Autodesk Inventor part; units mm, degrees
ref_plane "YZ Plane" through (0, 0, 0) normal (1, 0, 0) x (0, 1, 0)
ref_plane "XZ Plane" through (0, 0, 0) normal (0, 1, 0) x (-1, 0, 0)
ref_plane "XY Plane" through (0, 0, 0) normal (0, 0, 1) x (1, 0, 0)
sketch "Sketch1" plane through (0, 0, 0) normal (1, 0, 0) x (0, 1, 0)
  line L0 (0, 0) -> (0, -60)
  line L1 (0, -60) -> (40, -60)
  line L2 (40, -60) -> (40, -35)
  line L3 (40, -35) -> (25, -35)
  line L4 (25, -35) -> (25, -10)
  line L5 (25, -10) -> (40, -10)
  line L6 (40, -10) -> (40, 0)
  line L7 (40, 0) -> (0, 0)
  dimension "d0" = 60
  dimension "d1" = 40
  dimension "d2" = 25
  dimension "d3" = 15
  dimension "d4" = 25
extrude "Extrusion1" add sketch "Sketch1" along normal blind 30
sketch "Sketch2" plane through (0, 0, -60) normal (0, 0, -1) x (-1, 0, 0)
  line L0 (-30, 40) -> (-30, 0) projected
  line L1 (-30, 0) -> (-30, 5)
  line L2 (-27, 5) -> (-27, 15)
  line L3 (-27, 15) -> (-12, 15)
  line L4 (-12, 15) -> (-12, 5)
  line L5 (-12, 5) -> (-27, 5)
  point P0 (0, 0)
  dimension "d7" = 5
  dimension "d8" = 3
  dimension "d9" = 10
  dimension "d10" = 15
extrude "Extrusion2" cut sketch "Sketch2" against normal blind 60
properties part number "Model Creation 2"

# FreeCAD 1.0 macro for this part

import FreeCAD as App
import Part
import Sketcher
from FreeCAD import Vector

doc = App.newDocument("Part")
params = doc.addObject("Spreadsheet::Sheet", "Params")
for row, (alias, value) in enumerate([
    ("sketch1_width", "40 mm"),
    ("sketch1_width2", "15 mm"),
    ("sketch1_height", "60 mm"),
    ("sketch1_height2", "25 mm"),
    ("pad1_length", "30 mm"),
    ("sketch2_width", "15 mm"),
    ("sketch2_height", "10 mm"),
    ("pocket1_length", "60 mm"),
], start=1):
    params.set(f"A{row}", alias)
    params.set(f"B{row}", "=" + value)
    params.setAlias(f"B{row}", alias)

body = doc.addObject("PartDesign::Body", "Body")

# Sketch on YZ plane
sketch1 = body.newObject("Sketcher::SketchObject", "Sketch")
sketch1.AttachmentSupport = (doc.getObject("YZ_Plane"), [""])
sketch1.MapMode = "FlatFace"
sketch1.addGeometry(Part.LineSegment(Vector(40, 0, 0), Vector(0, 0, 0)), False)
sketch1.addGeometry(Part.LineSegment(Vector(0, 0, 0), Vector(0, -60, 0)), False)
sketch1.addGeometry(Part.LineSegment(Vector(0, -60, 0), Vector(40, -60, 0)), False)
sketch1.addGeometry(Part.LineSegment(Vector(40, -60, 0), Vector(40, -35, 0)), False)
sketch1.addGeometry(Part.LineSegment(Vector(40, -35, 0), Vector(25, -35, 0)), False)
sketch1.addGeometry(Part.LineSegment(Vector(25, -35, 0), Vector(25, -10, 0)), False)
sketch1.addGeometry(Part.LineSegment(Vector(25, -10, 0), Vector(40, -10, 0)), False)
sketch1.addGeometry(Part.LineSegment(Vector(40, -10, 0), Vector(40, 0, 0)), False)
sketch1.addConstraint(Sketcher.Constraint("Coincident", 0, 2, 1, 1))
sketch1.addConstraint(Sketcher.Constraint("Coincident", 1, 2, 2, 1))
sketch1.addConstraint(Sketcher.Constraint("Coincident", 2, 2, 3, 1))
sketch1.addConstraint(Sketcher.Constraint("Coincident", 3, 2, 4, 1))
sketch1.addConstraint(Sketcher.Constraint("Coincident", 4, 2, 5, 1))
sketch1.addConstraint(Sketcher.Constraint("Coincident", 5, 2, 6, 1))
sketch1.addConstraint(Sketcher.Constraint("Coincident", 6, 2, 7, 1))
sketch1.addConstraint(Sketcher.Constraint("Coincident", 7, 2, 0, 1))
sketch1.addConstraint(Sketcher.Constraint("Horizontal", 0))
sketch1.addConstraint(Sketcher.Constraint("Vertical", 1))
sketch1.addConstraint(Sketcher.Constraint("Horizontal", 2))
sketch1.addConstraint(Sketcher.Constraint("Vertical", 3))
sketch1.addConstraint(Sketcher.Constraint("Horizontal", 4))
sketch1.addConstraint(Sketcher.Constraint("Vertical", 5))
sketch1.addConstraint(Sketcher.Constraint("Horizontal", 6))
sketch1.addConstraint(Sketcher.Constraint("Vertical", 7))
sketch1.addConstraint(Sketcher.Constraint("Coincident", 0, 2, -1, 1))
sketch1.addConstraint(Sketcher.Constraint("Vertical", 3, 2, 6, 2))
sketch1.addConstraint(Sketcher.Constraint("Equal", 3, 5))
sketch1.addConstraint(Sketcher.Constraint("DistanceX", 0, 2, 0, 1, 40.0))
sketch1.addConstraint(Sketcher.Constraint("DistanceX", 4, 2, 4, 1, 15.0))
sketch1.addConstraint(Sketcher.Constraint("DistanceY", 1, 2, 1, 1, 60.0))
sketch1.addConstraint(Sketcher.Constraint("DistanceY", 3, 1, 3, 2, 25.0))
sketch1.setExpression("Constraints[19]", "Params.sketch1_width")
sketch1.setExpression("Constraints[20]", "Params.sketch1_width2")
sketch1.setExpression("Constraints[21]", "Params.sketch1_height")
sketch1.setExpression("Constraints[22]", "Params.sketch1_height2")
pad1 = body.newObject("PartDesign::Pad", "Pad")
pad1.Profile = sketch1
pad1.setExpression("Length", "Params.pad1_length")

# Sketch on XY plane
sketch2 = body.newObject("Sketcher::SketchObject", "Sketch001")
sketch2.AttachmentSupport = (doc.getObject("XY_Plane"), [""])
sketch2.MapMode = "FlatFace"
sketch2.AttachmentOffset = App.Placement(Vector(0, 0, -60), App.Rotation())
sketch2.addGeometry(Part.LineSegment(Vector(27, 15, 0), Vector(27, 5, 0)), False)
sketch2.addGeometry(Part.LineSegment(Vector(27, 5, 0), Vector(12, 5, 0)), False)
sketch2.addGeometry(Part.LineSegment(Vector(12, 5, 0), Vector(12, 15, 0)), False)
sketch2.addGeometry(Part.LineSegment(Vector(12, 15, 0), Vector(27, 15, 0)), False)
sketch2.addConstraint(Sketcher.Constraint("Coincident", 0, 2, 1, 1))
sketch2.addConstraint(Sketcher.Constraint("Coincident", 1, 2, 2, 1))
sketch2.addConstraint(Sketcher.Constraint("Coincident", 2, 2, 3, 1))
sketch2.addConstraint(Sketcher.Constraint("Coincident", 3, 2, 0, 1))
sketch2.addConstraint(Sketcher.Constraint("Vertical", 0))
sketch2.addConstraint(Sketcher.Constraint("Horizontal", 1))
sketch2.addConstraint(Sketcher.Constraint("Vertical", 2))
sketch2.addConstraint(Sketcher.Constraint("Horizontal", 3))
sketch2.addConstraint(Sketcher.Constraint("DistanceX", 1, 2, 1, 1, 15.0))
sketch2.addConstraint(Sketcher.Constraint("DistanceY", 0, 2, 0, 1, 10.0))
sketch2.addConstraint(Sketcher.Constraint("DistanceY", -1, 1, 0, 2, 5.0))
sketch2.addConstraint(Sketcher.Constraint("DistanceX", -1, 1, 0, 2, 27.0))
sketch2.setExpression("Constraints[8]", "Params.sketch2_width")
sketch2.setExpression("Constraints[9]", "Params.sketch2_height")
pocket1 = body.newObject("PartDesign::Pocket", "Pocket")
pocket1.Profile = sketch2
pocket1.setExpression("Length", "Params.pocket1_length")
pocket1.Reversed = True

doc.recompute()
